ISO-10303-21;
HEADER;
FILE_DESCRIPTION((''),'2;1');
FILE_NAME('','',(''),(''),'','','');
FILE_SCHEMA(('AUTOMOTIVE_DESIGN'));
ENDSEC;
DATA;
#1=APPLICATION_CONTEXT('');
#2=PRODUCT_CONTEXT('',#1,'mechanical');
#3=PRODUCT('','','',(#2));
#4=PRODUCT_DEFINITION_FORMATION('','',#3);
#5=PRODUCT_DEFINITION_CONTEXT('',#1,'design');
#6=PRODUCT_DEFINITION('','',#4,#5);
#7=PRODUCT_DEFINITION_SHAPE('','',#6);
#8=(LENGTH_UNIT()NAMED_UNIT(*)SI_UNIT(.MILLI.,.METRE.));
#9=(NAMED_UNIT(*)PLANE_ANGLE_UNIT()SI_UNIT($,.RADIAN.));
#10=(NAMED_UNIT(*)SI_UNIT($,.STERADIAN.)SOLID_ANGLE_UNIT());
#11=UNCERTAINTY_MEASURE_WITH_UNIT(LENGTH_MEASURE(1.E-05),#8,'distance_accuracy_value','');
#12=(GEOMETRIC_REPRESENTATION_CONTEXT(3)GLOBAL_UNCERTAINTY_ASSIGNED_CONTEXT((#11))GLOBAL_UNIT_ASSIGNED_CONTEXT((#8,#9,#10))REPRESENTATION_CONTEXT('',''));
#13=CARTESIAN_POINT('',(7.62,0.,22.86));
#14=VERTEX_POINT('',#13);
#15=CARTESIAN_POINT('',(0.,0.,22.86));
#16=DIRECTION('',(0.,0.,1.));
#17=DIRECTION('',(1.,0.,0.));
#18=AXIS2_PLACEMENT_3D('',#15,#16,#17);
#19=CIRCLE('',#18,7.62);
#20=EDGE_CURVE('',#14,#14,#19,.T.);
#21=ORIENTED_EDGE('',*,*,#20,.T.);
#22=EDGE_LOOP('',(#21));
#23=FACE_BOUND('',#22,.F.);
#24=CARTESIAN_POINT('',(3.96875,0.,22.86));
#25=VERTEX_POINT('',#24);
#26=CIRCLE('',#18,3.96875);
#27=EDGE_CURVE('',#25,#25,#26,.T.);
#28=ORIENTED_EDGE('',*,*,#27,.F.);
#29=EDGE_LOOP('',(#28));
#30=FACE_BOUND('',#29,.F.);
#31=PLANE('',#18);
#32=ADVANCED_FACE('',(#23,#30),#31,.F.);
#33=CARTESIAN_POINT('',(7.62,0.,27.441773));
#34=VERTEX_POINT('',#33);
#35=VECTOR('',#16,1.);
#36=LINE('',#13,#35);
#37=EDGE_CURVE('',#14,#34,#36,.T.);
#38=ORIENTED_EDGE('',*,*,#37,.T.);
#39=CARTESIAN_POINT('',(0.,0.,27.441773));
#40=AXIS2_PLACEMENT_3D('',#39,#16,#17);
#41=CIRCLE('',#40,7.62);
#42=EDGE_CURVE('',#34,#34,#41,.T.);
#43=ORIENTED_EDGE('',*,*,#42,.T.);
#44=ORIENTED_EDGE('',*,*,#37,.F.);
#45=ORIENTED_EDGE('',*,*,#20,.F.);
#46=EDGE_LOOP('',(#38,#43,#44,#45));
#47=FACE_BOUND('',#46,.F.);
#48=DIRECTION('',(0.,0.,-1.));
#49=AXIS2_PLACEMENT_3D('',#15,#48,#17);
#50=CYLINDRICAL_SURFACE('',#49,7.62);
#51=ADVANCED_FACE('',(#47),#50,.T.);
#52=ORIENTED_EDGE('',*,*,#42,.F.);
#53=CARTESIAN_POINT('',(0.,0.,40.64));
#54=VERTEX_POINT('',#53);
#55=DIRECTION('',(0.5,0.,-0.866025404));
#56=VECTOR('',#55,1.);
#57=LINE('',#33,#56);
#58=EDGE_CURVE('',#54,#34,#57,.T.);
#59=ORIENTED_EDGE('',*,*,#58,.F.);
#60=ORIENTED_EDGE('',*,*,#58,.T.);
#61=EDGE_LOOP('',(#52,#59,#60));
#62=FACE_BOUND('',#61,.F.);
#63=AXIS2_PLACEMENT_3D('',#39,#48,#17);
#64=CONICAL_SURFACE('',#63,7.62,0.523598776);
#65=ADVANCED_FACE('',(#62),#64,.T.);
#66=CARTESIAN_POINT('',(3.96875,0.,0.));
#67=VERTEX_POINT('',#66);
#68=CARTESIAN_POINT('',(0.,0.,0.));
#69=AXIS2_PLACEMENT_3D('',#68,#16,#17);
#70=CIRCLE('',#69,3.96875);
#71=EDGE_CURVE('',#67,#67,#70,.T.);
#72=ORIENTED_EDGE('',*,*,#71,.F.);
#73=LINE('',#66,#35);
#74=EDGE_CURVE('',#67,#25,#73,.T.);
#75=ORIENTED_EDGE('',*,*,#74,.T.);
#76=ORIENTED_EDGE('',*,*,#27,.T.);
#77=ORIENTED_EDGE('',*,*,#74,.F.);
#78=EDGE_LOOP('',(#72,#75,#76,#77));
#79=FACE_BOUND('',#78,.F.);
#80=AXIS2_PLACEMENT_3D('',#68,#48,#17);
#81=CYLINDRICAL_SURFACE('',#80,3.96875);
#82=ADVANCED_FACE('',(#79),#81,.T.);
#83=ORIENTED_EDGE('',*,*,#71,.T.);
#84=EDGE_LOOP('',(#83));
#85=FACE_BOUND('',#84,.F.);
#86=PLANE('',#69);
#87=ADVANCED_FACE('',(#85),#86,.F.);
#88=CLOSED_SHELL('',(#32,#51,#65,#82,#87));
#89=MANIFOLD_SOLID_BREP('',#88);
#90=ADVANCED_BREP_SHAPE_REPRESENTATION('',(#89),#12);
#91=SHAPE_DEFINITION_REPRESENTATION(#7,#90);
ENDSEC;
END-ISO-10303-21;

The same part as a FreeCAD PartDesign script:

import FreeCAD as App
import Part
import Sketcher
from FreeCAD import Vector
Q = App.Units.Quantity


def edges_at(feature, points):
    """Names of the edges that pass closest to the given points."""
    edges = feature.Shape.Edges
    near = lambda p: min(range(len(edges)), key=lambda i: edges[i].distToShape(Part.Vertex(*p))[0])
    return sorted({f"Edge{near(p) + 1}" for p in points})

doc = App.newDocument("Part")
params = doc.addObject("Spreadsheet::Sheet", "Params")
for row, (alias, value) in enumerate([
    ("sketch1_diameter", "0.3125 in"),
    ("pad1_length", "0.9 in"),
    ("sketch2_diameter", "0.6 in"),
    ("pad2_length", "0.7 in"),
    ("chamfer_size", "0.3 in"),
    ("chamfer_size2", "13.198227 mm"),
], start=1):
    params.set(f"A{row}", alias)
    params.set(f"B{row}", "=" + value)
    params.setAlias(f"B{row}", alias)

body = doc.addObject("PartDesign::Body", "Body")

# Sketch on XY plane
sketch1 = doc.addObject("Sketcher::SketchObject", "Sketch")
body.addObject(sketch1)
sketch1.AttachmentSupport = (doc.XY_Plane, [""])
sketch1.MapMode = "FlatFace"
sketch1.addGeometry(Part.Circle(Vector(0, 0, 0), Vector(0, 0, 1), 4), False)
sketch1.addConstraint([
    Sketcher.Constraint("Coincident", 0, 3, -1, 1),
    Sketcher.Constraint("Diameter", 0, Q("0.3125 in")),
])
sketch1.setExpression("Constraints[1]", "Params.sketch1_diameter")
pad1 = doc.addObject("PartDesign::Pad", "Pad")
body.addObject(pad1)
pad1.Profile = sketch1
pad1.setExpression("Length", "Params.pad1_length")

# Sketch on XY plane
sketch2 = doc.addObject("Sketcher::SketchObject", "Sketch001")
body.addObject(sketch2)
sketch2.AttachmentSupport = (doc.XY_Plane, [""])
sketch2.MapMode = "FlatFace"
sketch2.AttachmentOffset = App.Placement(Vector(0, 0, 0.9 * 25.4), App.Rotation())
sketch2.addGeometry(Part.Circle(Vector(0, 0, 0), Vector(0, 0, 1), 8), False)
sketch2.addConstraint([
    Sketcher.Constraint("Coincident", 0, 3, -1, 1),
    Sketcher.Constraint("Diameter", 0, Q("0.6 in")),
])
sketch2.setExpression("Constraints[1]", "Params.sketch2_diameter")
pad2 = doc.addObject("PartDesign::Pad", "Pad001")
body.addObject(pad2)
pad2.Profile = sketch2
pad2.setExpression("Length", "Params.pad2_length")
doc.recompute()

chamfer = doc.addObject("PartDesign::Chamfer", "Chamfer")
body.addObject(chamfer)
chamfer.Base = (pad2, edges_at(pad2, [(-7.62, 0, 40.64)]))
chamfer.ChamferType = "Two distances"
chamfer.setExpression("Size", "Params.chamfer_size")
chamfer.setExpression("Size2", "Params.chamfer_size2")
chamfer.FlipDirection = True

doc.recompute()
